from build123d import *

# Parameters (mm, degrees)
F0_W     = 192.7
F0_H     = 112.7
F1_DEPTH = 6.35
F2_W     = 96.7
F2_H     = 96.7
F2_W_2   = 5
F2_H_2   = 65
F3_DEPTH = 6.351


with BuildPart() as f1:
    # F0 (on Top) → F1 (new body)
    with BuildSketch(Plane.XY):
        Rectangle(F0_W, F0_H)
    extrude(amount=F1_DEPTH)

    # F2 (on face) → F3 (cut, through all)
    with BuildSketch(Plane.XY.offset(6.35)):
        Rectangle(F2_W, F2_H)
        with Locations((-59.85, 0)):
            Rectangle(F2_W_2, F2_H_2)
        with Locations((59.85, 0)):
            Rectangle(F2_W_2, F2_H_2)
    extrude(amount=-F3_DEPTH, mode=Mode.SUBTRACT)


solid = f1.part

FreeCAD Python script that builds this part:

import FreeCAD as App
import Part
import Sketcher
Q = App.Units.Quantity


def add_polygon(sketch, points):
    """Adds a closed chain of lines whose ends are joined by coincident constraints."""
    first, n = sketch.GeometryCount, len(points)
    for a, b in zip(points, points[1:] + points[:1]):
        sketch.addGeometry(Part.LineSegment(App.Vector(*a, 0), App.Vector(*b, 0)), False)
    for i in range(n):
        sketch.addConstraint(Sketcher.Constraint("Coincident", first + i, 2, first + (i + 1) % n, 1))

doc = App.newDocument("Part")
params = doc.addObject("Spreadsheet::Sheet", "Params")
for row, (alias, value) in enumerate([
    ("sketch1_width", "192.7 mm"),
    ("sketch1_height", "112.7 mm"),
    ("pad1_length", "6.35 mm"),
    ("sketch2_width", "5 mm"),
    ("sketch2_height", "65 mm"),
    ("sketch2_width2", "96.7 mm"),
], start=1):
    params.set(f"A{row}", alias)
    params.set(f"B{row}", "=" + value)
    params.setAlias(f"B{row}", alias)

body = doc.addObject("PartDesign::Body", "Body")

# Sketch on XY plane
sketch1 = body.newObject("Sketcher::SketchObject", "Sketch")
sketch1.AttachmentSupport = (doc.getObject("XY_Plane"), [""])
sketch1.MapMode = "FlatFace"
add_polygon(sketch1, [(-96, 56), (-96, -56), (96, -56), (96, 56)])  # lines 0-3
sketch1.addConstraint([
    Sketcher.Constraint("Vertical", 0),
    Sketcher.Constraint("Horizontal", 1),
    Sketcher.Constraint("Vertical", 2),
    Sketcher.Constraint("Horizontal", 3),
    Sketcher.Constraint("Symmetric", 0, 2, 2, 2, -1, 1),
    Sketcher.Constraint("DistanceX", 1, 1, 1, 2, Q("192.7 mm")),
    Sketcher.Constraint("DistanceY", 0, 2, 0, 1, Q("112.7 mm")),
])
sketch1.setExpression("Constraints[9]", "Params.sketch1_width")
sketch1.setExpression("Constraints[10]", "Params.sketch1_height")
pad1 = body.newObject("PartDesign::Pad", "Pad")
pad1.Profile = sketch1
pad1.setExpression("Length", "Params.pad1_length")

# Sketch on XY plane
sketch2 = body.newObject("Sketcher::SketchObject", "Sketch001")
sketch2.AttachmentSupport = (doc.getObject("XY_Plane"), [""])
sketch2.MapMode = "FlatFace"
sketch2.AttachmentOffset = App.Placement(App.Vector(0, 0, 6.35), App.Rotation())
add_polygon(sketch2, [(-48, 48), (-48, -48), (48, -48), (48, 48)])  # lines 0-3
add_polygon(sketch2, [(-62, 32), (-62, -32), (-57, -32), (-57, 32)])  # lines 4-7
add_polygon(sketch2, [(57, 32), (57, -32), (62, -32), (62, 32)])  # lines 8-11
sketch2.addConstraint([
    Sketcher.Constraint("Vertical", 0),
    Sketcher.Constraint("Horizontal", 1),
    Sketcher.Constraint("Vertical", 2),
    Sketcher.Constraint("Horizontal", 3),
    Sketcher.Constraint("Vertical", 4),
    Sketcher.Constraint("Horizontal", 5),
    Sketcher.Constraint("Vertical", 6),
    Sketcher.Constraint("Horizontal", 7),
    Sketcher.Constraint("Vertical", 8),
    Sketcher.Constraint("Horizontal", 9),
    Sketcher.Constraint("Vertical", 10),
    Sketcher.Constraint("Horizontal", 11),
    Sketcher.Constraint("Symmetric", 0, 2, 2, 2, -1, 1),
    Sketcher.Constraint("Symmetric", 6, 2, 8, 2, -1, 1),
    Sketcher.Constraint("Symmetric", 4, 2, 10, 2, -1, 1),
    Sketcher.Constraint("Horizontal", 5, 2, 8, 2),
    Sketcher.Constraint("Equal", 3, 0),
    Sketcher.Constraint("DistanceX", 5, 1, 5, 2, Q("5 mm")),
    Sketcher.Constraint("DistanceY", 4, 2, 4, 1, Q("65 mm")),
    Sketcher.Constraint("DistanceX", 1, 1, 1, 2, Q("96.7 mm")),
    Sketcher.Constraint("DistanceX", 4, 2, 0, 2, Q("14 mm")),
])
sketch2.setExpression("Constraints[29]", "Params.sketch2_width")
sketch2.setExpression("Constraints[30]", "Params.sketch2_height")
sketch2.setExpression("Constraints[31]", "Params.sketch2_width2")
pocket1 = body.newObject("PartDesign::Pocket", "Pocket")
pocket1.Profile = sketch2
pocket1.Type = "ThroughAll"

doc.recompute()
